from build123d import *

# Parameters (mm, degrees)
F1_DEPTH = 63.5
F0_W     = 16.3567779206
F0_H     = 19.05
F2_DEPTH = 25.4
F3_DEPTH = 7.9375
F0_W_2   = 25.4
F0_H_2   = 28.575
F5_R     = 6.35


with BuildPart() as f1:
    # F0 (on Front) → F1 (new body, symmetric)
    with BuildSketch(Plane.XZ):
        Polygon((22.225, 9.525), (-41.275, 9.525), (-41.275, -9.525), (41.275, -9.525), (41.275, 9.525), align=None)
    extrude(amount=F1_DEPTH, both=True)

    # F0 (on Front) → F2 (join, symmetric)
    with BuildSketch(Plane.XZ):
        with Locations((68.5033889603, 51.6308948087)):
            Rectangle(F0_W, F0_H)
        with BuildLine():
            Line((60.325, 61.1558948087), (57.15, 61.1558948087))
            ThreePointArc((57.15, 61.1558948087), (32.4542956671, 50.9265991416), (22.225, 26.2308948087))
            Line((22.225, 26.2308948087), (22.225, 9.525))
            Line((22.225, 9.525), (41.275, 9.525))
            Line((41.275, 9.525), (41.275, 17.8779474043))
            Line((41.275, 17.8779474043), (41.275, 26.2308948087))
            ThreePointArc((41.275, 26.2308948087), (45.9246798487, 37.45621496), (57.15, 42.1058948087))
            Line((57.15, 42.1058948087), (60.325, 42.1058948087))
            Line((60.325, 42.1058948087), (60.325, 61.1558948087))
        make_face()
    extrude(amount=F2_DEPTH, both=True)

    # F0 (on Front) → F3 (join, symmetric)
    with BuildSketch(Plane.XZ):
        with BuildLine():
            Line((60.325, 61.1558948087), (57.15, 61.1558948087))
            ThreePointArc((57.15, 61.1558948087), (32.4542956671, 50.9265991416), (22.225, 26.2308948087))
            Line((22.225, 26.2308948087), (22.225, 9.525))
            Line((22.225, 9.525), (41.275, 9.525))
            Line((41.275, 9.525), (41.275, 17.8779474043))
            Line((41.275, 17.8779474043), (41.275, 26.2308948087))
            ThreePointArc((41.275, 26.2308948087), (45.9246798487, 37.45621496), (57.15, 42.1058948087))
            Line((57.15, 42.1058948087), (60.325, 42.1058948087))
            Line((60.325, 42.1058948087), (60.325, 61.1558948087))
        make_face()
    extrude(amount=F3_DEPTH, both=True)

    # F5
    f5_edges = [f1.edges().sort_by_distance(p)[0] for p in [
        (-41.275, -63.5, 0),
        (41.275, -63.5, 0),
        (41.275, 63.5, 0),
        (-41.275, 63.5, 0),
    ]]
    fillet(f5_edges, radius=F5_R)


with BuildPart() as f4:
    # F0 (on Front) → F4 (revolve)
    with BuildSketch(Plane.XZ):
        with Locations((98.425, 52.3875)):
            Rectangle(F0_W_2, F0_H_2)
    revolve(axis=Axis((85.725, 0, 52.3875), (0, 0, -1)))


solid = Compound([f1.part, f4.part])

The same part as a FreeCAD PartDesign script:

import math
import FreeCAD as App
import Part
import Sketcher
from FreeCAD import Vector
Q = App.Units.Quantity


def edges_at(feature, points):
    """Names of the edges that pass closest to the given points."""
    edges = feature.Shape.Edges
    near = lambda p: min(range(len(edges)), key=lambda i: edges[i].distToShape(Part.Vertex(*p))[0])
    return sorted({f"Edge{near(p) + 1}" for p in points})


def add_polygon(sketch, points):
    """Adds a closed chain of lines whose ends are joined by coincident constraints."""
    first, n = sketch.GeometryCount, len(points)
    for a, b in zip(points, points[1:] + points[:1]):
        sketch.addGeometry(Part.LineSegment(App.Vector(*a, 0), App.Vector(*b, 0)), False)
    for i in range(n):
        sketch.addConstraint(Sketcher.Constraint("Coincident", first + i, 2, first + (i + 1) % n, 1))

doc = App.newDocument("Part")
body = doc.addObject("PartDesign::Body", "Body")

# Sketch on XZ plane
sketch1 = doc.addObject("Sketcher::SketchObject", "Sketch")
body.addObject(sketch1)
sketch1.AttachmentSupport = (doc.XZ_Plane, [""])
sketch1.MapMode = "FlatFace"
add_polygon(sketch1, [(-41, 10), (-41, -10), (41, -10), (41, 10)])  # lines 0-3
sketch1.addConstraint(Sketcher.Constraint("Vertical", 0))
sketch1.addConstraint(Sketcher.Constraint("Horizontal", 1))
sketch1.addConstraint(Sketcher.Constraint("Vertical", 2))
sketch1.addConstraint(Sketcher.Constraint("Horizontal", 3))
sketch1.addConstraint(Sketcher.Constraint("Symmetric", 0, 2, 2, 2, -1, 1))
sketch1.addConstraint(Sketcher.Constraint("DistanceX", 1, 1, 1, 2, Q("3.25 in")))
sketch1.addConstraint(Sketcher.Constraint("DistanceY", 0, 2, 0, 1, Q("0.75 in")))
pad1 = doc.addObject("PartDesign::Pad", "Pad")
body.addObject(pad1)
pad1.Profile = sketch1
pad1.Length = Q("5 in")
pad1.Midplane = True

# Sketch on XZ plane
sketch2 = doc.addObject("Sketcher::SketchObject", "Sketch001")
body.addObject(sketch2)
sketch2.AttachmentSupport = (doc.XZ_Plane, [""])
sketch2.MapMode = "FlatFace"
sketch2.addGeometry(Part.LineSegment(Vector(77, 42, 0), Vector(77, 61, 0)), False)
sketch2.addGeometry(Part.LineSegment(Vector(77, 61, 0), Vector(57, 61, 0)), False)
sketch2.addGeometry(Part.ArcOfCircle(Part.Circle(Vector(57, 26, 0), Vector(0, 0, 1), 35), math.radians(90), math.radians(180)), False)
sketch2.addGeometry(Part.LineSegment(Vector(22, 26, 0), Vector(22, 10, 0)), False)
sketch2.addGeometry(Part.LineSegment(Vector(22, 10, 0), Vector(41, 10, 0)), False)
sketch2.addGeometry(Part.LineSegment(Vector(41, 10, 0), Vector(41, 26, 0)), False)
sketch2.addGeometry(Part.ArcOfCircle(Part.Circle(Vector(57, 26, 0), Vector(0, 0, 1), 16), math.radians(90), math.radians(180)), False)
sketch2.addGeometry(Part.LineSegment(Vector(57, 42, 0), Vector(77, 42, 0)), False)
sketch2.addConstraint(Sketcher.Constraint("Coincident", 0, 2, 1, 1))
sketch2.addConstraint(Sketcher.Constraint("Tangent", 1, 2, 2, 1))
sketch2.addConstraint(Sketcher.Constraint("Tangent", 2, 2, 3, 1))
sketch2.addConstraint(Sketcher.Constraint("Coincident", 3, 2, 4, 1))
sketch2.addConstraint(Sketcher.Constraint("Coincident", 4, 2, 5, 1))
sketch2.addConstraint(Sketcher.Constraint("Tangent", 5, 2, 6, 2))
sketch2.addConstraint(Sketcher.Constraint("Tangent", 6, 1, 7, 1))
sketch2.addConstraint(Sketcher.Constraint("Coincident", 7, 2, 0, 1))
sketch2.addConstraint(Sketcher.Constraint("Vertical", 0))
sketch2.addConstraint(Sketcher.Constraint("Horizontal", 1))
sketch2.addConstraint(Sketcher.Constraint("Vertical", 3))
sketch2.addConstraint(Sketcher.Constraint("Horizontal", 4))
sketch2.addConstraint(Sketcher.Constraint("Vertical", 5))
sketch2.addConstraint(Sketcher.Constraint("Horizontal", 7))
sketch2.addConstraint(Sketcher.Constraint("Coincident", 6, 3, 2, 3))
sketch2.addConstraint(Sketcher.Constraint("Radius", 2, Q("1.375 in")))
sketch2.addConstraint(Sketcher.Constraint("Radius", 6, Q("0.625 in")))
sketch2.addConstraint(Sketcher.Constraint("DistanceX", -1, 1, 2, 3, Q("2.25 in")))
sketch2.addConstraint(Sketcher.Constraint("DistanceY", -1, 1, 3, 2, Q("0.375 in")))
sketch2.addConstraint(Sketcher.Constraint("DistanceX", 1, 2, 1, 1, 19.531778))
sketch2.addConstraint(Sketcher.Constraint("DistanceY", 3, 2, 3, 1, 16.705895))
pad2 = doc.addObject("PartDesign::Pad", "Pad001")
body.addObject(pad2)
pad2.Profile = sketch2
pad2.Length = Q("2 in")
pad2.Midplane = True

# Sketch on XZ plane
sketch3 = doc.addObject("Sketcher::SketchObject", "Sketch002")
body.addObject(sketch3)
sketch3.AttachmentSupport = (doc.XZ_Plane, [""])
sketch3.MapMode = "FlatFace"
sketch3.addGeometry(Part.LineSegment(Vector(60.3, 61.2, 0), Vector(57.1, 61.2, 0)), False)
sketch3.addGeometry(Part.ArcOfCircle(Part.Circle(Vector(57.1, 26.2, 0), Vector(0, 0, 1), 34.9), math.radians(90), math.radians(180)), False)
sketch3.addGeometry(Part.LineSegment(Vector(22.2, 26.2, 0), Vector(22.2, 9.5, 0)), False)
sketch3.addGeometry(Part.LineSegment(Vector(22.2, 9.5, 0), Vector(41.3, 9.5, 0)), False)
sketch3.addGeometry(Part.LineSegment(Vector(41.3, 9.5, 0), Vector(41.3, 26.2, 0)), False)
sketch3.addGeometry(Part.ArcOfCircle(Part.Circle(Vector(57.1, 26.2, 0), Vector(0, 0, 1), 15.9), math.radians(90), math.radians(180)), False)
sketch3.addGeometry(Part.LineSegment(Vector(57.1, 42.1, 0), Vector(60.3, 42.1, 0)), False)
sketch3.addGeometry(Part.LineSegment(Vector(60.3, 42.1, 0), Vector(60.3, 61.2, 0)), False)
sketch3.addConstraint(Sketcher.Constraint("Tangent", 0, 2, 1, 1))
sketch3.addConstraint(Sketcher.Constraint("Tangent", 1, 2, 2, 1))
sketch3.addConstraint(Sketcher.Constraint("Coincident", 2, 2, 3, 1))
sketch3.addConstraint(Sketcher.Constraint("Coincident", 3, 2, 4, 1))
sketch3.addConstraint(Sketcher.Constraint("Tangent", 4, 2, 5, 2))
sketch3.addConstraint(Sketcher.Constraint("Tangent", 5, 1, 6, 1))
sketch3.addConstraint(Sketcher.Constraint("Coincident", 6, 2, 7, 1))
sketch3.addConstraint(Sketcher.Constraint("Coincident", 7, 2, 0, 1))
sketch3.addConstraint(Sketcher.Constraint("Horizontal", 0))
sketch3.addConstraint(Sketcher.Constraint("Vertical", 2))
sketch3.addConstraint(Sketcher.Constraint("Horizontal", 3))
sketch3.addConstraint(Sketcher.Constraint("Vertical", 4))
sketch3.addConstraint(Sketcher.Constraint("Horizontal", 6))
sketch3.addConstraint(Sketcher.Constraint("Vertical", 7))
sketch3.addConstraint(Sketcher.Constraint("Coincident", 5, 3, 1, 3))
sketch3.addConstraint(Sketcher.Constraint("Radius", 1, Q("1.375 in")))
sketch3.addConstraint(Sketcher.Constraint("Radius", 5, Q("0.625 in")))
sketch3.addConstraint(Sketcher.Constraint("DistanceX", 0, 2, 0, 1, Q("0.125 in")))
sketch3.addConstraint(Sketcher.Constraint("DistanceX", -1, 1, 1, 3, Q("2.25 in")))
sketch3.addConstraint(Sketcher.Constraint("DistanceY", -1, 1, 2, 2, Q("0.375 in")))
sketch3.addConstraint(Sketcher.Constraint("DistanceY", 2, 2, 2, 1, 16.705895))
pad3 = doc.addObject("PartDesign::Pad", "Pad002")
body.addObject(pad3)
pad3.Profile = sketch3
pad3.Length = Q("0.625 in")
pad3.Midplane = True
doc.recompute()

fillet = doc.addObject("PartDesign::Fillet", "Fillet")
body.addObject(fillet)
fillet.Base = (pad3, edges_at(pad3, [
    (-41.275, -63.5, 0),
    (41.275, -63.5, 0),
    (41.275, 63.5, 0),
    (-41.275, 63.5, 0),
]))
fillet.Radius = Q("0.25 in")
body2 = doc.addObject("PartDesign::Body", "Body001")

# Sketch on XZ plane
sketch4 = doc.addObject("Sketcher::SketchObject", "Sketch003")
body2.addObject(sketch4)
sketch4.AttachmentSupport = (doc.getObject("XZ_Plane001"), [""])
sketch4.MapMode = "FlatFace"
add_polygon(sketch4, [(86, 67), (86, 38), (111, 38), (111, 67)])  # lines 0-3
sketch4.addGeometry(Part.LineSegment(Vector(86, 67, 0), Vector(86, 38, 0)), True)  # axis
sketch4.addConstraint(Sketcher.Constraint("Vertical", 0))
sketch4.addConstraint(Sketcher.Constraint("Horizontal", 1))
sketch4.addConstraint(Sketcher.Constraint("Vertical", 2))
sketch4.addConstraint(Sketcher.Constraint("Horizontal", 3))
sketch4.addConstraint(Sketcher.Constraint("Vertical", 4))
sketch4.addConstraint(Sketcher.Constraint("Coincident", 4, 1, 3, 2))
sketch4.addConstraint(Sketcher.Constraint("Horizontal", 1, 2, 4, 2))
sketch4.addConstraint(Sketcher.Constraint("DistanceX", 1, 1, 1, 2, Q("1 in")))
sketch4.addConstraint(Sketcher.Constraint("DistanceY", -1, 1, 0, 2, Q("1.5 in")))
sketch4.addConstraint(Sketcher.Constraint("DistanceY", 0, 2, 0, 1, Q("1.125 in")))
sketch4.addConstraint(Sketcher.Constraint("DistanceX", -1, 1, 0, 2, Q("3.375 in")))
revolution = doc.addObject("PartDesign::Revolution", "Revolution")
body2.addObject(revolution)
revolution.Profile = sketch4
revolution.ReferenceAxis = (sketch4, ["Axis0"])
revolution.Angle = 360

doc.recompute()
